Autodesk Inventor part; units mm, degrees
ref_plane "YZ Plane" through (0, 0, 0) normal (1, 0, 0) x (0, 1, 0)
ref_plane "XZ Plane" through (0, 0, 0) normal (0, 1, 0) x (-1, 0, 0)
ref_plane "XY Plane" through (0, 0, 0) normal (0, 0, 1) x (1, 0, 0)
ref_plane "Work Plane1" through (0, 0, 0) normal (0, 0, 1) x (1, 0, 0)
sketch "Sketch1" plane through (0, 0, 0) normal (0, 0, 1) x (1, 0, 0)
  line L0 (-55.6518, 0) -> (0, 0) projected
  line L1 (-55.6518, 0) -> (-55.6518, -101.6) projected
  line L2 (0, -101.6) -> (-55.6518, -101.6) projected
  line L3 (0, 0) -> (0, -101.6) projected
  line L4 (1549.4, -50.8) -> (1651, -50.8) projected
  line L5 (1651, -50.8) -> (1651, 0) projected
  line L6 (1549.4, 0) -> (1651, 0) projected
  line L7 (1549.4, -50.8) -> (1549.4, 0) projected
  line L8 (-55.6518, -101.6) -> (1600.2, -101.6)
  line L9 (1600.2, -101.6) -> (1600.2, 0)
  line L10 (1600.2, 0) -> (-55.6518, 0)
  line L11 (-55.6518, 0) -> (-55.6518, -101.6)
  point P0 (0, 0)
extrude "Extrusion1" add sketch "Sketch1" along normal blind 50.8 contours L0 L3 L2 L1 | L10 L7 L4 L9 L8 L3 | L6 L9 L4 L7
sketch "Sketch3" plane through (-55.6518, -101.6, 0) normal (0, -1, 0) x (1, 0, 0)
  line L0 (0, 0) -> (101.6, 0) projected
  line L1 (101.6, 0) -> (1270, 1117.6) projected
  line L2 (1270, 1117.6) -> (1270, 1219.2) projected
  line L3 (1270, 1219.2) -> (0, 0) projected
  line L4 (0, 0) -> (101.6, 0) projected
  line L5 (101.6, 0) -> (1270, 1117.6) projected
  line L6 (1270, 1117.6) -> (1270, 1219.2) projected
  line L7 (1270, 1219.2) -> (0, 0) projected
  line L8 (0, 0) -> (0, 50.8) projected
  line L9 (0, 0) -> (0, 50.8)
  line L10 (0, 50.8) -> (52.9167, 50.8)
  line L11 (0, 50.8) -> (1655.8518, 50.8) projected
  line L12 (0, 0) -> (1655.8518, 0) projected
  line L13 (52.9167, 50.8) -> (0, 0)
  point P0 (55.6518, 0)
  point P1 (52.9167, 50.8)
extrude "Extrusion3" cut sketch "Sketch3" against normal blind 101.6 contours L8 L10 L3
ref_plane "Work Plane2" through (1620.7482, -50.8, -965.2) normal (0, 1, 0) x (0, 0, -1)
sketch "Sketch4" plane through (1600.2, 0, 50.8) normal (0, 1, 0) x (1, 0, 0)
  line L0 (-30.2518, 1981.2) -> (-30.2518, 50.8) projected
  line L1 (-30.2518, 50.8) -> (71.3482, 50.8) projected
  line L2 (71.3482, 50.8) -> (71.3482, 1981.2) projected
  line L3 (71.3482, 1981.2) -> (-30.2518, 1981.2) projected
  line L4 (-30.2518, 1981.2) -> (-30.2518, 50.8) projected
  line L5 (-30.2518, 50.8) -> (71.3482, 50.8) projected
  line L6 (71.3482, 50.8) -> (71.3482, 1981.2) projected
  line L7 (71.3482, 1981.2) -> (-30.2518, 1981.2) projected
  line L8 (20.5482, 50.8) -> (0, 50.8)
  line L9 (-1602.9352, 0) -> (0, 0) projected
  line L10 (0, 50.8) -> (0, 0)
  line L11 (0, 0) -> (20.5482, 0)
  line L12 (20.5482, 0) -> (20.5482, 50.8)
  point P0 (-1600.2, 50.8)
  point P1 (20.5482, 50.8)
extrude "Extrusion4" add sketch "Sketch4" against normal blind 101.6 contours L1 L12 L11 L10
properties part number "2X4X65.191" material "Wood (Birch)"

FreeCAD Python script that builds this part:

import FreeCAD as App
import Part
import Sketcher

V = App.Vector
Q = App.Units.Quantity

doc = App.newDocument("Part")
body = doc.addObject("PartDesign::Body", "Body")

# Sketch on XY plane
sketch1 = body.newObject("Sketcher::SketchObject", "Sketch")
sketch1.AttachmentSupport = (doc.getObject("XY_Plane"), [""])
sketch1.MapMode = "FlatFace"
sketch1.addGeometry(Part.LineSegment(V(-56, 0, 0), V(-56, -102, 0)), False)
sketch1.addGeometry(Part.LineSegment(V(-56, -102, 0), V(1600, -102, 0)), False)
sketch1.addGeometry(Part.LineSegment(V(1600, -102, 0), V(1600, 0, 0)), False)
sketch1.addGeometry(Part.LineSegment(V(1600, 0, 0), V(-56, 0, 0)), False)
sketch1.addConstraint(Sketcher.Constraint("Coincident", 0, 2, 1, 1))
sketch1.addConstraint(Sketcher.Constraint("Coincident", 1, 2, 2, 1))
sketch1.addConstraint(Sketcher.Constraint("Coincident", 2, 2, 3, 1))
sketch1.addConstraint(Sketcher.Constraint("Coincident", 3, 2, 0, 1))
sketch1.addConstraint(Sketcher.Constraint("Vertical", 0))
sketch1.addConstraint(Sketcher.Constraint("Horizontal", 1))
sketch1.addConstraint(Sketcher.Constraint("Vertical", 2))
sketch1.addConstraint(Sketcher.Constraint("Horizontal", 3))
sketch1.addConstraint(Sketcher.Constraint("PointOnObject", 2, 2, -1))
sketch1.addConstraint(Sketcher.Constraint("DistanceY", 0, 2, 0, 1, Q("4 in")))
sketch1.addConstraint(Sketcher.Constraint("DistanceX", -1, 1, 1, 2, Q("63 in")))
sketch1.addConstraint(Sketcher.Constraint("DistanceX", 1, 1, 1, 2, Q("1655.8518 mm")))
pad1 = body.newObject("PartDesign::Pad", "Pad")
pad1.Profile = sketch1
pad1.Length = Q("2 in")

# Sketch on XZ plane
sketch2 = body.newObject("Sketcher::SketchObject", "Sketch001")
sketch2.AttachmentSupport = (doc.getObject("XZ_Plane"), [""])
sketch2.MapMode = "FlatFace"
sketch2.AttachmentOffset = App.Placement(V(0, 0, 4 * 25.4), App.Rotation())
sketch2.addGeometry(Part.LineSegment(V(-56, 51, 0), V(-56, 0, 0)), False)
sketch2.addGeometry(Part.LineSegment(V(-56, 0, 0), V(-3, 51, 0)), False)
sketch2.addGeometry(Part.LineSegment(V(-3, 51, 0), V(-56, 51, 0)), False)
sketch2.addConstraint(Sketcher.Constraint("Coincident", 0, 2, 1, 1))
sketch2.addConstraint(Sketcher.Constraint("Coincident", 1, 2, 2, 1))
sketch2.addConstraint(Sketcher.Constraint("Coincident", 2, 2, 0, 1))
sketch2.addConstraint(Sketcher.Constraint("Vertical", 0))
sketch2.addConstraint(Sketcher.Constraint("Horizontal", 2))
sketch2.addConstraint(Sketcher.Constraint("PointOnObject", 0, 2, -1))
sketch2.addConstraint(Sketcher.Constraint("DistanceY", 0, 2, 0, 1, Q("2 in")))
sketch2.addConstraint(Sketcher.Constraint("Angle", 1, Q("43.8309 deg")))
sketch2.addConstraint(Sketcher.Constraint("DistanceX", 0, 2, -1, 1, Q("55.6518 mm")))
pocket1 = body.newObject("PartDesign::Pocket", "Pocket")
pocket1.Profile = sketch2
pocket1.Length = Q("4 in")

# Sketch on XZ plane
sketch3 = body.newObject("Sketcher::SketchObject", "Sketch002")
sketch3.AttachmentSupport = (doc.getObject("XZ_Plane"), [""])
sketch3.MapMode = "FlatFace"
sketch3.addGeometry(Part.LineSegment(V(1621, 0, 0), V(1600, 0, 0)), False)
sketch3.addGeometry(Part.LineSegment(V(1600, 0, 0), V(1600, 51, 0)), False)
sketch3.addGeometry(Part.LineSegment(V(1600, 51, 0), V(1621, 51, 0)), False)
sketch3.addGeometry(Part.LineSegment(V(1621, 51, 0), V(1621, 0, 0)), False)
sketch3.addConstraint(Sketcher.Constraint("Coincident", 0, 2, 1, 1))
sketch3.addConstraint(Sketcher.Constraint("Coincident", 1, 2, 2, 1))
sketch3.addConstraint(Sketcher.Constraint("Coincident", 2, 2, 3, 1))
sketch3.addConstraint(Sketcher.Constraint("Coincident", 3, 2, 0, 1))
sketch3.addConstraint(Sketcher.Constraint("Horizontal", 0))
sketch3.addConstraint(Sketcher.Constraint("Vertical", 1))
sketch3.addConstraint(Sketcher.Constraint("Horizontal", 2))
sketch3.addConstraint(Sketcher.Constraint("Vertical", 3))
sketch3.addConstraint(Sketcher.Constraint("PointOnObject", 0, 2, -1))
sketch3.addConstraint(Sketcher.Constraint("DistanceY", 1, 1, 1, 2, Q("2 in")))
sketch3.addConstraint(Sketcher.Constraint("DistanceX", -1, 1, 0, 2, Q("63 in")))
sketch3.addConstraint(Sketcher.Constraint("DistanceX", 0, 2, 0, 1, Q("20.5482 mm")))
pad2 = body.newObject("PartDesign::Pad", "Pad001")
pad2.Profile = sketch3
pad2.Length = Q("4 in")

doc.recompute()
